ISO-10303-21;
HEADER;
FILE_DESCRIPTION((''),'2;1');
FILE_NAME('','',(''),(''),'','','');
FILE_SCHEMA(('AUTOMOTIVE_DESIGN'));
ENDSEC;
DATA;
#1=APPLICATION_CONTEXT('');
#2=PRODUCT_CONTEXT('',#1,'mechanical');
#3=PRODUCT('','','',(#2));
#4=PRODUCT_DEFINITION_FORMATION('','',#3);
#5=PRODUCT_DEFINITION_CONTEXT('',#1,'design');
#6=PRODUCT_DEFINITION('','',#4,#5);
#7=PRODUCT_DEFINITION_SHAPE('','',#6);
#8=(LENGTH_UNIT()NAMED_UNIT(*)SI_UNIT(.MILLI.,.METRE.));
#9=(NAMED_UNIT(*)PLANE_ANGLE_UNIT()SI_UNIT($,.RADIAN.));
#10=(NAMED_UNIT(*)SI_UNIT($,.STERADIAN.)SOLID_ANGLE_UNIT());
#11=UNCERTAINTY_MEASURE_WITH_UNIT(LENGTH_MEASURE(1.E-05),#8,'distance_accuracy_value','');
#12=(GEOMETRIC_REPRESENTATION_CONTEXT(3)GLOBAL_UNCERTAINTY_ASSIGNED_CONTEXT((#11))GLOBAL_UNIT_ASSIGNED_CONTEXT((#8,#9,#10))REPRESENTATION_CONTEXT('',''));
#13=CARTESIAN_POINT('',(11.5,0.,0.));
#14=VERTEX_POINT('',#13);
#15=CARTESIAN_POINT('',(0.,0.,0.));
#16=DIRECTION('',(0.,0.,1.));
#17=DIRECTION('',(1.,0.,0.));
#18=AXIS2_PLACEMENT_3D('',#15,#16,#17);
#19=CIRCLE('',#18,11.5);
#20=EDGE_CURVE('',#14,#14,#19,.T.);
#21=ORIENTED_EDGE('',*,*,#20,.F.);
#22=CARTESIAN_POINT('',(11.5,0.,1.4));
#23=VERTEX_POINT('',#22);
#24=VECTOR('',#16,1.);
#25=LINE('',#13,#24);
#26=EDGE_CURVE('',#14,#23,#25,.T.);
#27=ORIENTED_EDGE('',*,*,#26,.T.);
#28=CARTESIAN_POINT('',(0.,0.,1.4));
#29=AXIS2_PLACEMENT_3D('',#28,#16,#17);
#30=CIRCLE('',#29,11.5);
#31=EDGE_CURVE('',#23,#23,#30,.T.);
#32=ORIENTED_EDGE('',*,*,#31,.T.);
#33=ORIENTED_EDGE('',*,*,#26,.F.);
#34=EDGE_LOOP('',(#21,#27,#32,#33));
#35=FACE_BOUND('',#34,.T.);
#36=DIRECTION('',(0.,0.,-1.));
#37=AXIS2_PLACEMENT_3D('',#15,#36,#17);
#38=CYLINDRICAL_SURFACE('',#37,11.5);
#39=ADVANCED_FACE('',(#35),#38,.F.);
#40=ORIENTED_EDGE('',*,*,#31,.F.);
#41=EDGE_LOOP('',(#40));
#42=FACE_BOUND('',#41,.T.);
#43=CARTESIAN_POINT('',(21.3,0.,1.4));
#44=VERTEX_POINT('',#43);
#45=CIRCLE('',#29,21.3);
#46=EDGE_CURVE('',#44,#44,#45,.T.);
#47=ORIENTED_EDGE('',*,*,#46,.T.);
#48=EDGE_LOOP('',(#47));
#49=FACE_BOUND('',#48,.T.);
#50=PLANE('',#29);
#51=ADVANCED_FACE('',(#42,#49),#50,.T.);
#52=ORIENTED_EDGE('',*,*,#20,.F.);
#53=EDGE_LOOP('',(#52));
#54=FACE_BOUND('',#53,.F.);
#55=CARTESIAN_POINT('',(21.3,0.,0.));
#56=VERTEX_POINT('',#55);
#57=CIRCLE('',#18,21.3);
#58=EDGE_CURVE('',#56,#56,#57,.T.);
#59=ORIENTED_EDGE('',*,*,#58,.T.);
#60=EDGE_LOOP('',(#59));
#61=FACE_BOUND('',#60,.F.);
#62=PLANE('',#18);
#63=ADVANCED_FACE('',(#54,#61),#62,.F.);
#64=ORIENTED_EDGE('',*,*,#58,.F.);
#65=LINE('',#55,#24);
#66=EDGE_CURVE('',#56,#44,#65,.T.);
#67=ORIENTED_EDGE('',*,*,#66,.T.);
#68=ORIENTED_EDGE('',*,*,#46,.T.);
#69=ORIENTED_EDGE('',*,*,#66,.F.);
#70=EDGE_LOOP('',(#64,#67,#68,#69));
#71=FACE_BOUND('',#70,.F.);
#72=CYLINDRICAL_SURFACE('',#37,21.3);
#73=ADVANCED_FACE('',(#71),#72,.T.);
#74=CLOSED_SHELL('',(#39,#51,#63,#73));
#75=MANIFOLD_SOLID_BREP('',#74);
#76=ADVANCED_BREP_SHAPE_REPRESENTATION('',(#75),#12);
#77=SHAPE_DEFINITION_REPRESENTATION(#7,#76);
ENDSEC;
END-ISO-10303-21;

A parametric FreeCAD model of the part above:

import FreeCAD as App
import Part
import Sketcher
from FreeCAD import Vector

doc = App.newDocument("Part")
body = doc.addObject("PartDesign::Body", "Body")

# Sketch on XY plane
sketch1 = doc.addObject("Sketcher::SketchObject", "Sketch")
body.addObject(sketch1)
sketch1.AttachmentSupport = (doc.XY_Plane, [""])
sketch1.MapMode = "FlatFace"
sketch1.addGeometry(Part.Circle(Vector(0, 0, 0), Vector(0, 0, 1), 21), False)
sketch1.addGeometry(Part.Circle(Vector(0, 0, 0), Vector(0, 0, 1), 12), False)
sketch1.addConstraint(Sketcher.Constraint("Coincident", 0, 3, -1, 1))
sketch1.addConstraint(Sketcher.Constraint("Coincident", 1, 3, -1, 1))
sketch1.addConstraint(Sketcher.Constraint("Diameter", 0, 42.6))
sketch1.addConstraint(Sketcher.Constraint("Diameter", 1, 23.0))
pad1 = doc.addObject("PartDesign::Pad", "Pad")
body.addObject(pad1)
pad1.Profile = sketch1
pad1.Length = 1.4

doc.recompute()
